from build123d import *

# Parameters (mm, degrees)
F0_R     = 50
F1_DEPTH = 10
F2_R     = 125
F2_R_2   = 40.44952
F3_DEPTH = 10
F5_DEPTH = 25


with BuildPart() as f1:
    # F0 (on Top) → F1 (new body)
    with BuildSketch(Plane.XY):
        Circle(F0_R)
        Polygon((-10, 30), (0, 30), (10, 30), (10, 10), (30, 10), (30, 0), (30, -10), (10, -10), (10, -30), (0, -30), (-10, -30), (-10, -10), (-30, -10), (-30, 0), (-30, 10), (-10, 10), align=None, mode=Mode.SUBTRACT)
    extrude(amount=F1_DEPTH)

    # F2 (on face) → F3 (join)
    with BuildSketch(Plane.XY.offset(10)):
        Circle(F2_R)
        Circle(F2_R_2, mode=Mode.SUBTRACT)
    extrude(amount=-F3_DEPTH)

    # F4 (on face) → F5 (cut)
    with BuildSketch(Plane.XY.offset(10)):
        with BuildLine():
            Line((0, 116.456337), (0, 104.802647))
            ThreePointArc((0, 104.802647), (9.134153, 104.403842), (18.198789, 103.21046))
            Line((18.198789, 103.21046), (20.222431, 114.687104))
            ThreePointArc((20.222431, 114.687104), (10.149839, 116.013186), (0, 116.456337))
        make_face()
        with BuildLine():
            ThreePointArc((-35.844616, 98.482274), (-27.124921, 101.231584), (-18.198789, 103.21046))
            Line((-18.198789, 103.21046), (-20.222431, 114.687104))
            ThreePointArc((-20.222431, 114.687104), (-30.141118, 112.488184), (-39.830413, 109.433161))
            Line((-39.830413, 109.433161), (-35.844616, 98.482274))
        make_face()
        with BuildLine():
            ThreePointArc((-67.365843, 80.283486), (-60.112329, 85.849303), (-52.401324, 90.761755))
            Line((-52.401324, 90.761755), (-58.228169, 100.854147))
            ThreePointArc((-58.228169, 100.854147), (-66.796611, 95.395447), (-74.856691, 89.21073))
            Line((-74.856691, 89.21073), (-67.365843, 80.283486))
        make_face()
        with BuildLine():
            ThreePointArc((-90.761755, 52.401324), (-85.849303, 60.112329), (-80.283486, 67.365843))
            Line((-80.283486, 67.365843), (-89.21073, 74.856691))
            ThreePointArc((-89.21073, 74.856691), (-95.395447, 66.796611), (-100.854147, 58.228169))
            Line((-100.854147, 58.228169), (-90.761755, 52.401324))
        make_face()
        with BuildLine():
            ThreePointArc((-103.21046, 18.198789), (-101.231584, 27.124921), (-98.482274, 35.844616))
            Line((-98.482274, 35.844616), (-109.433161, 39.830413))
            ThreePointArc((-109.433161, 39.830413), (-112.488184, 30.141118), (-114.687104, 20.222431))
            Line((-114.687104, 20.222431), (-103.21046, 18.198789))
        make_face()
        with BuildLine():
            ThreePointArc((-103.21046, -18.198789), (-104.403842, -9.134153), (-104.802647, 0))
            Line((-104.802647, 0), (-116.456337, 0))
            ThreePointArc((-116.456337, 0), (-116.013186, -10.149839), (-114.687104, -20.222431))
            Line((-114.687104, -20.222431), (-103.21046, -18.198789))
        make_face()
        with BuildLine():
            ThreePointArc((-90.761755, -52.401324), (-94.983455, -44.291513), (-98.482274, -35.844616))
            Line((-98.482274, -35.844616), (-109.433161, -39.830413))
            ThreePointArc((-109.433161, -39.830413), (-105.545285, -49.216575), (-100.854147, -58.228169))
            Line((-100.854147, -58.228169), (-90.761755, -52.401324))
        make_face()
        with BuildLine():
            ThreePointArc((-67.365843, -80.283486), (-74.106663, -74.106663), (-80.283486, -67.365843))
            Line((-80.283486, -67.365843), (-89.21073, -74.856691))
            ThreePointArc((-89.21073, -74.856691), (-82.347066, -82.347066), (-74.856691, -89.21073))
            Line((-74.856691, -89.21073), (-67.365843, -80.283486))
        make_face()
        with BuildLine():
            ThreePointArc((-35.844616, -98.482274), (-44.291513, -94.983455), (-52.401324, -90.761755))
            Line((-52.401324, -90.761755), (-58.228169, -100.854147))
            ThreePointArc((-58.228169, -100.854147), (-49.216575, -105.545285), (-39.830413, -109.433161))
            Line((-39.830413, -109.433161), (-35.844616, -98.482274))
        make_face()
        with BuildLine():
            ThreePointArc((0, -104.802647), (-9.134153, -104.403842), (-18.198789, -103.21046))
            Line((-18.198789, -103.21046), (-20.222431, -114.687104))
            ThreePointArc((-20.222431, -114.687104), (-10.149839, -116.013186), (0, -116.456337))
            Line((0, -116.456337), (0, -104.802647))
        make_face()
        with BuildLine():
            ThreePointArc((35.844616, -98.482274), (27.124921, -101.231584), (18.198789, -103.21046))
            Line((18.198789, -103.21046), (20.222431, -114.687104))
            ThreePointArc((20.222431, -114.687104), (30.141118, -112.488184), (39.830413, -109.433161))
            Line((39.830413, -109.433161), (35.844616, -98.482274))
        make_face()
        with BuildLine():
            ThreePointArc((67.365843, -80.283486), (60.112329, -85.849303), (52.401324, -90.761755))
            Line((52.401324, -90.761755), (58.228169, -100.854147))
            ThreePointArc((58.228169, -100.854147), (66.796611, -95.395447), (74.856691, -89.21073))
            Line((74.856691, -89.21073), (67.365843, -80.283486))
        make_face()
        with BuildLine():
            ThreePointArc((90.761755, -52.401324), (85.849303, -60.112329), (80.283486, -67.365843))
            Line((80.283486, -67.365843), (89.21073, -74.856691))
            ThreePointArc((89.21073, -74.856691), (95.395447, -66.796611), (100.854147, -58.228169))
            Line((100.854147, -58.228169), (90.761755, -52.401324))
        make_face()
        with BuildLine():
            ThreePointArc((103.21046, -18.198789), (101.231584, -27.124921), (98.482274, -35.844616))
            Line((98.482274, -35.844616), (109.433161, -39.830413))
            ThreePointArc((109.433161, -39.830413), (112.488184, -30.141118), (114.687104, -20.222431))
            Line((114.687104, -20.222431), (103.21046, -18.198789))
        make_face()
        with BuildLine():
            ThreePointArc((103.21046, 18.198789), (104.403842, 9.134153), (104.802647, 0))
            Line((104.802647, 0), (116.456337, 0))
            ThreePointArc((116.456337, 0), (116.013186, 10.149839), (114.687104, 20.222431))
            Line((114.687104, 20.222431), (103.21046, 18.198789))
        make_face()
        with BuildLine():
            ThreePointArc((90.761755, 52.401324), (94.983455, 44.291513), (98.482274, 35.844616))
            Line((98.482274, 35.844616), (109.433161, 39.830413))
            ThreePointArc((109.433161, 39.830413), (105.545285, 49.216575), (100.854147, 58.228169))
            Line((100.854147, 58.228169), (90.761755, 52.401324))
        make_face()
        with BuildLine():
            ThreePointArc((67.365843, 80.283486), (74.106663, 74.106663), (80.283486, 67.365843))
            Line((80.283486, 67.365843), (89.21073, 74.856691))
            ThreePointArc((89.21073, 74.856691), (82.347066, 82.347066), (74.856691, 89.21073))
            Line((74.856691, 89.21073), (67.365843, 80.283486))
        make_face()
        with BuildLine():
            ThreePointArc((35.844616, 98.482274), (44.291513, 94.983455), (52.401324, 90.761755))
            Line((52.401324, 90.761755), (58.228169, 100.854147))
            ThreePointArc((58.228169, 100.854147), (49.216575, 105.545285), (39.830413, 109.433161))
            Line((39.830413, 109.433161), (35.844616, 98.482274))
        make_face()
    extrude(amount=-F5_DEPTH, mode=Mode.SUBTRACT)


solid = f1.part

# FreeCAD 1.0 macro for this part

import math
import FreeCAD as App
import Part
import Sketcher

V = App.Vector
Q = App.Units.Quantity

doc = App.newDocument("Part")
body = doc.addObject("PartDesign::Body", "Body")

# Sketch on XY plane
sketch1 = body.newObject("Sketcher::SketchObject", "Sketch")
sketch1.AttachmentSupport = (doc.getObject("XY_Plane"), [""])
sketch1.MapMode = "FlatFace"
sketch1.addGeometry([
    Part.Circle(V(0, 0, 0), V(0, 0, 1), 50),  # 0
    Part.LineSegment(V(-10, 10, 0), V(-10, 30, 0)),  # 1
    Part.LineSegment(V(-10, 30, 0), V(10, 30, 0)),  # 2
    Part.LineSegment(V(10, 30, 0), V(10, 10, 0)),  # 3
    Part.LineSegment(V(10, 10, 0), V(30, 10, 0)),  # 4
    Part.LineSegment(V(30, 10, 0), V(30, -10, 0)),  # 5
    Part.LineSegment(V(30, -10, 0), V(10, -10, 0)),  # 6
    Part.LineSegment(V(10, -10, 0), V(10, -30, 0)),  # 7
    Part.LineSegment(V(10, -30, 0), V(-10, -30, 0)),  # 8
    Part.LineSegment(V(-10, -30, 0), V(-10, -10, 0)),  # 9
    Part.LineSegment(V(-10, -10, 0), V(-30, -10, 0)),  # 10
    Part.LineSegment(V(-30, -10, 0), V(-30, 10, 0)),  # 11
    Part.LineSegment(V(-30, 10, 0), V(-10, 10, 0)),  # 12
], False)
sketch1.addConstraint([
    Sketcher.Constraint("Coincident", 1, 2, 2, 1),
    Sketcher.Constraint("Coincident", 2, 2, 3, 1),
    Sketcher.Constraint("Coincident", 3, 2, 4, 1),
    Sketcher.Constraint("Coincident", 4, 2, 5, 1),
    Sketcher.Constraint("Coincident", 5, 2, 6, 1),
    Sketcher.Constraint("Coincident", 6, 2, 7, 1),
    Sketcher.Constraint("Coincident", 7, 2, 8, 1),
    Sketcher.Constraint("Coincident", 8, 2, 9, 1),
    Sketcher.Constraint("Coincident", 9, 2, 10, 1),
    Sketcher.Constraint("Coincident", 10, 2, 11, 1),
    Sketcher.Constraint("Coincident", 11, 2, 12, 1),
    Sketcher.Constraint("Coincident", 12, 2, 1, 1),
    Sketcher.Constraint("Vertical", 1),
    Sketcher.Constraint("Horizontal", 2),
    Sketcher.Constraint("Vertical", 3),
    Sketcher.Constraint("Horizontal", 4),
    Sketcher.Constraint("Vertical", 5),
    Sketcher.Constraint("Horizontal", 6),
    Sketcher.Constraint("Vertical", 7),
    Sketcher.Constraint("Horizontal", 8),
    Sketcher.Constraint("Vertical", 9),
    Sketcher.Constraint("Horizontal", 10),
    Sketcher.Constraint("Vertical", 11),
    Sketcher.Constraint("Horizontal", 12),
    Sketcher.Constraint("Coincident", 0, 3, -1, 1),
    Sketcher.Constraint("Symmetric", 1, 2, 7, 2, -1, 1),
    Sketcher.Constraint("Symmetric", 3, 2, 9, 2, -1, 1),
    Sketcher.Constraint("Symmetric", 5, 2, 11, 2, -1, 1),
    Sketcher.Constraint("Symmetric", 6, 2, 9, 2, -2),
    Sketcher.Constraint("Equal", 2, 4),
    Sketcher.Constraint("Equal", 12, 1),
    Sketcher.Constraint("Equal", 3, 5),
    Sketcher.Constraint("Diameter", 0, Q("100 mm")),
    Sketcher.Constraint("DistanceX", 2, 1, 2, 2, Q("20 mm")),
])
pad1 = body.newObject("PartDesign::Pad", "Pad")
pad1.Profile = sketch1
pad1.Length = 10

# Sketch on XY plane
sketch2 = body.newObject("Sketcher::SketchObject", "Sketch001")
sketch2.AttachmentSupport = (doc.getObject("XY_Plane"), [""])
sketch2.MapMode = "FlatFace"
sketch2.AttachmentOffset = App.Placement(V(0, 0, 10), App.Rotation())
sketch2.addGeometry([
    Part.Circle(V(0, 0, 0), V(0, 0, 1), 125),
    Part.Circle(V(0, 0, 0), V(0, 0, 1), 40),
], False)
sketch2.addConstraint([
    Sketcher.Constraint("Coincident", 0, 3, -1, 1),
    Sketcher.Constraint("Coincident", 1, 3, -1, 1),
    Sketcher.Constraint("Diameter", 0, Q("250 mm")),
    Sketcher.Constraint("Diameter", 1, Q("80.89904 mm")),
])
pad2 = body.newObject("PartDesign::Pad", "Pad001")
pad2.Profile = sketch2
pad2.Length = 10
pad2.Reversed = True

# Sketch on XY plane
sketch3 = body.newObject("Sketcher::SketchObject", "Sketch002")
sketch3.AttachmentSupport = (doc.getObject("XY_Plane"), [""])
sketch3.MapMode = "FlatFace"
sketch3.AttachmentOffset = App.Placement(V(0, 0, 10), App.Rotation())
sketch3.addGeometry([
    Part.LineSegment(V(0, 116.456337, 0), V(0, 104.802647, 0)),  # 0
    Part.ArcOfCircle(Part.Circle(V(0.000013, 0.000098, 0), V(0, 0, 1), 104.802549), math.radians(79.999997), math.radians(90.000007)),  # 1
    Part.LineSegment(V(18.198789, 103.21046, 0), V(20.222431, 114.687104, 0)),  # 2
    Part.ArcOfCircle(Part.Circle(V(0.00001, 0.000083, 0), V(0, 0, 1), 116.456254), math.radians(79.999998), math.radians(90.000005)),  # 3
    Part.ArcOfCircle(Part.Circle(V(-0.000014, 0.00007, 0), V(0, 0, 1), 104.802576), math.radians(99.999999), math.radians(110.000006)),  # 4
    Part.LineSegment(V(-18.198789, 103.21046, 0), V(-20.222431, 114.687104, 0)),  # 5
    Part.ArcOfCircle(Part.Circle(V(0, 0.000001, 0), V(0, 0, 1), 116.456336), math.radians(100), math.radians(110)),  # 6
    Part.LineSegment(V(-39.830413, 109.433161, 0), V(-35.844616, 98.482274, 0)),  # 7
    Part.ArcOfCircle(Part.Circle(V(0.000003, -0.000004, 0), V(0, 0, 1), 104.802653), math.radians(120), math.radians(130)),  # 8
    Part.LineSegment(V(-52.401324, 90.761755, 0), V(-58.228169, 100.854147, 0)),  # 9
    Part.ArcOfCircle(Part.Circle(V(0.000024, -0.00003, 0), V(0, 0, 1), 116.456376), math.radians(120.000003), math.radians(130)),  # 10
    Part.LineSegment(V(-74.856691, 89.21073, 0), V(-67.365843, 80.283486, 0)),  # 11
    Part.ArcOfCircle(Part.Circle(V(0.000004, -0.000003, 0), V(0, 0, 1), 104.802653), math.radians(140), math.radians(150)),  # 12
    Part.LineSegment(V(-80.283486, 67.365843, 0), V(-89.21073, 74.856691, 0)),  # 13
    Part.ArcOfCircle(Part.Circle(V(0.00003, -0.000024, 0), V(0, 0, 1), 116.456376), math.radians(140), math.radians(149.999997)),  # 14
    Part.LineSegment(V(-100.854147, 58.228169, 0), V(-90.761755, 52.401324, 0)),  # 15
    Part.ArcOfCircle(Part.Circle(V(-0.00007, 0.000014, 0), V(0, 0, 1), 104.802576), math.radians(159.999994), math.radians(170.000001)),  # 16
    Part.LineSegment(V(-98.482274, 35.844616, 0), V(-109.433161, 39.830413, 0)),  # 17
    Part.ArcOfCircle(Part.Circle(V(-0.000001, 0, 0), V(0, 0, 1), 116.456336), math.radians(160), math.radians(170)),  # 18
    Part.LineSegment(V(-114.687104, 20.222431, 0), V(-103.21046, 18.198789, 0)),  # 19
    Part.ArcOfCircle(Part.Circle(V(-0.000098, -0.000013, 0), V(0, 0, 1), 104.802549), math.radians(179.999993), math.radians(190.000003)),  # 20
    Part.LineSegment(V(-104.802647, 0, 0), V(-116.456337, 0, 0)),  # 21
    Part.ArcOfCircle(Part.Circle(V(-0.000083, -0.00001, 0), V(0, 0, 1), 116.456254), math.radians(179.999995), math.radians(190.000002)),  # 22
    Part.LineSegment(V(-114.687104, -20.222431, 0), V(-103.21046, -18.198789, 0)),  # 23
    Part.ArcOfCircle(Part.Circle(V(0.000013, 0.000002, 0), V(0, 0, 1), 104.80266), math.radians(-160.000002), math.radians(-150.000003)),  # 24
    Part.LineSegment(V(-98.482274, -35.844616, 0), V(-109.433161, -39.830413, 0)),  # 25
    Part.ArcOfCircle(Part.Circle(V(0.000143, 0.000064, 0), V(0, 0, 1), 116.456494), math.radians(-159.999995), math.radians(-150.000008)),  # 26
    Part.LineSegment(V(-100.854147, -58.228169, 0), V(-90.761755, -52.401324, 0)),  # 27
    Part.ArcOfCircle(Part.Circle(V(-0.000066, -0.000066, 0), V(0, 0, 1), 104.802554), math.radians(-140.000005), math.radians(-129.999995)),  # 28
    Part.LineSegment(V(-80.283486, -67.365843, 0), V(-89.21073, -74.856691, 0)),  # 29
    Part.ArcOfCircle(Part.Circle(V(-0.000018, -0.000018, 0), V(0, 0, 1), 116.456312), math.radians(-140.000001), math.radians(-129.999999)),  # 30
    Part.LineSegment(V(-74.856691, -89.21073, 0), V(-67.365843, -80.283486, 0)),  # 31
    Part.ArcOfCircle(Part.Circle(V(0.000002, 0.000013, 0), V(0, 0, 1), 104.80266), math.radians(-119.999997), math.radians(-109.999998)),  # 32
    Part.LineSegment(V(-52.401324, -90.761755, 0), V(-58.228169, -100.854147, 0)),  # 33
    Part.ArcOfCircle(Part.Circle(V(0.000064, 0.000143, 0), V(0, 0, 1), 116.456494), math.radians(-119.999992), math.radians(-110.000005)),  # 34
    Part.LineSegment(V(-39.830413, -109.433161, 0), V(-35.844616, -98.482274, 0)),  # 35
    Part.ArcOfCircle(Part.Circle(V(-0.000013, -0.000098, 0), V(0, 0, 1), 104.802549), math.radians(-100.000003), math.radians(-89.999993)),  # 36
    Part.LineSegment(V(-18.198789, -103.21046, 0), V(-20.222431, -114.687104, 0)),  # 37
    Part.ArcOfCircle(Part.Circle(V(-0.00001, -0.000083, 0), V(0, 0, 1), 116.456254), math.radians(-100.000002), math.radians(-89.999995)),  # 38
    Part.LineSegment(V(0, -116.456337, 0), V(0, -104.802647, 0)),  # 39
    Part.ArcOfCircle(Part.Circle(V(0.000014, -0.00007, 0), V(0, 0, 1), 104.802576), math.radians(-80.000001), math.radians(-69.999994)),  # 40
    Part.LineSegment(V(18.198789, -103.21046, 0), V(20.222431, -114.687104, 0)),  # 41
    Part.ArcOfCircle(Part.Circle(V(0, -0.000001, 0), V(0, 0, 1), 116.456336), math.radians(-80), math.radians(-70)),  # 42
    Part.LineSegment(V(39.830413, -109.433161, 0), V(35.844616, -98.482274, 0)),  # 43
    Part.ArcOfCircle(Part.Circle(V(-0.000003, 0.000004, 0), V(0, 0, 1), 104.802653), math.radians(-60), math.radians(-50)),  # 44
    Part.LineSegment(V(52.401324, -90.761755, 0), V(58.228169, -100.854147, 0)),  # 45
    Part.ArcOfCircle(Part.Circle(V(-0.000024, 0.00003, 0), V(0, 0, 1), 116.456376), math.radians(-59.999997), math.radians(-50)),  # 46
    Part.LineSegment(V(74.856691, -89.21073, 0), V(67.365843, -80.283486, 0)),  # 47
    Part.ArcOfCircle(Part.Circle(V(-0.000004, 0.000003, 0), V(0, 0, 1), 104.802653), math.radians(-40), math.radians(-30)),  # 48
    Part.LineSegment(V(80.283486, -67.365843, 0), V(89.21073, -74.856691, 0)),  # 49
    Part.ArcOfCircle(Part.Circle(V(-0.00003, 0.000024, 0), V(0, 0, 1), 116.456376), math.radians(-40), math.radians(-30.000003)),  # 50
    Part.LineSegment(V(100.854147, -58.228169, 0), V(90.761755, -52.401324, 0)),  # 51
    Part.ArcOfCircle(Part.Circle(V(0.00007, -0.000014, 0), V(0, 0, 1), 104.802576), math.radians(-20.000006), math.radians(-9.999999)),  # 52
    Part.LineSegment(V(98.482274, -35.844616, 0), V(109.433161, -39.830413, 0)),  # 53
    Part.ArcOfCircle(Part.Circle(V(0.000001, 0, 0), V(0, 0, 1), 116.456336), math.radians(-20), math.radians(-10)),  # 54
    Part.LineSegment(V(114.687104, -20.222431, 0), V(103.21046, -18.198789, 0)),  # 55
    Part.ArcOfCircle(Part.Circle(V(0.000098, 0.000013, 0), V(0, 0, 1), 104.802549), math.radians(-0.000007), math.radians(10.000003)),  # 56
    Part.LineSegment(V(104.802647, 0, 0), V(116.456337, 0, 0)),  # 57
    Part.ArcOfCircle(Part.Circle(V(0.000083, 0.00001, 0), V(0, 0, 1), 116.456254), math.radians(-0.000005), math.radians(10.000002)),  # 58
    Part.LineSegment(V(114.687104, 20.222431, 0), V(103.21046, 18.198789, 0)),  # 59
    Part.ArcOfCircle(Part.Circle(V(-0.000013, -0.000002, 0), V(0, 0, 1), 104.80266), math.radians(19.999998), math.radians(29.999997)),  # 60
    Part.LineSegment(V(98.482274, 35.844616, 0), V(109.433161, 39.830413, 0)),  # 61
    Part.ArcOfCircle(Part.Circle(V(-0.000143, -0.000064, 0), V(0, 0, 1), 116.456494), math.radians(20.000005), math.radians(29.999992)),  # 62
    Part.LineSegment(V(100.854147, 58.228169, 0), V(90.761755, 52.401324, 0)),  # 63
    Part.ArcOfCircle(Part.Circle(V(0.000066, 0.000066, 0), V(0, 0, 1), 104.802554), math.radians(39.999995), math.radians(50.000005)),  # 64
    Part.LineSegment(V(80.283486, 67.365843, 0), V(89.21073, 74.856691, 0)),  # 65
    Part.ArcOfCircle(Part.Circle(V(0.000018, 0.000018, 0), V(0, 0, 1), 116.456312), math.radians(39.999999), math.radians(50.000001)),  # 66
    Part.LineSegment(V(74.856691, 89.21073, 0), V(67.365843, 80.283486, 0)),  # 67
    Part.ArcOfCircle(Part.Circle(V(-0.000002, -0.000013, 0), V(0, 0, 1), 104.80266), math.radians(60.000003), math.radians(70.000002)),  # 68
    Part.LineSegment(V(52.401324, 90.761755, 0), V(58.228169, 100.854147, 0)),  # 69
    Part.ArcOfCircle(Part.Circle(V(-0.000064, -0.000143, 0), V(0, 0, 1), 116.456494), math.radians(60.000008), math.radians(69.999995)),  # 70
    Part.LineSegment(V(39.830413, 109.433161, 0), V(35.844616, 98.482274, 0)),  # 71
], False)
sketch3.addConstraint([
    Sketcher.Constraint("Coincident", 0, 2, 1, 2),
    Sketcher.Constraint("Coincident", 1, 1, 2, 1),
    Sketcher.Constraint("Coincident", 2, 2, 3, 1),
    Sketcher.Constraint("Coincident", 3, 2, 0, 1),
    Sketcher.Constraint("Coincident", 4, 1, 5, 1),
    Sketcher.Constraint("Coincident", 5, 2, 6, 1),
    Sketcher.Constraint("Coincident", 6, 2, 7, 1),
    Sketcher.Constraint("Coincident", 7, 2, 4, 2),
    Sketcher.Constraint("Coincident", 8, 1, 9, 1),
    Sketcher.Constraint("Coincident", 9, 2, 10, 1),
    Sketcher.Constraint("Coincident", 10, 2, 11, 1),
    Sketcher.Constraint("Coincident", 11, 2, 8, 2),
    Sketcher.Constraint("Coincident", 12, 1, 13, 1),
    Sketcher.Constraint("Coincident", 13, 2, 14, 1),
    Sketcher.Constraint("Coincident", 14, 2, 15, 1),
    Sketcher.Constraint("Coincident", 15, 2, 12, 2),
    Sketcher.Constraint("Coincident", 16, 1, 17, 1),
    Sketcher.Constraint("Coincident", 17, 2, 18, 1),
    Sketcher.Constraint("Coincident", 18, 2, 19, 1),
    Sketcher.Constraint("Coincident", 19, 2, 16, 2),
    Sketcher.Constraint("Coincident", 20, 1, 21, 1),
    Sketcher.Constraint("Coincident", 21, 2, 22, 1),
    Sketcher.Constraint("Coincident", 22, 2, 23, 1),
    Sketcher.Constraint("Coincident", 23, 2, 20, 2),
    Sketcher.Constraint("Coincident", 24, 1, 25, 1),
    Sketcher.Constraint("Coincident", 25, 2, 26, 1),
    Sketcher.Constraint("Coincident", 26, 2, 27, 1),
    Sketcher.Constraint("Coincident", 27, 2, 24, 2),
    Sketcher.Constraint("Coincident", 28, 1, 29, 1),
    Sketcher.Constraint("Coincident", 29, 2, 30, 1),
    Sketcher.Constraint("Coincident", 30, 2, 31, 1),
    Sketcher.Constraint("Coincident", 31, 2, 28, 2),
    Sketcher.Constraint("Coincident", 32, 1, 33, 1),
    Sketcher.Constraint("Coincident", 33, 2, 34, 1),
    Sketcher.Constraint("Coincident", 34, 2, 35, 1),
    Sketcher.Constraint("Coincident", 35, 2, 32, 2),
    Sketcher.Constraint("Coincident", 36, 1, 37, 1),
    Sketcher.Constraint("Coincident", 37, 2, 38, 1),
    Sketcher.Constraint("Coincident", 38, 2, 39, 1),
    Sketcher.Constraint("Coincident", 39, 2, 36, 2),
    Sketcher.Constraint("Coincident", 40, 1, 41, 1),
    Sketcher.Constraint("Coincident", 41, 2, 42, 1),
    Sketcher.Constraint("Coincident", 42, 2, 43, 1),
    Sketcher.Constraint("Coincident", 43, 2, 40, 2),
    Sketcher.Constraint("Coincident", 44, 1, 45, 1),
    Sketcher.Constraint("Coincident", 45, 2, 46, 1),
    Sketcher.Constraint("Coincident", 46, 2, 47, 1),
    Sketcher.Constraint("Coincident", 47, 2, 44, 2),
    Sketcher.Constraint("Coincident", 48, 1, 49, 1),
    Sketcher.Constraint("Coincident", 49, 2, 50, 1),
    Sketcher.Constraint("Coincident", 50, 2, 51, 1),
    Sketcher.Constraint("Coincident", 51, 2, 48, 2),
    Sketcher.Constraint("Coincident", 52, 1, 53, 1),
    Sketcher.Constraint("Coincident", 53, 2, 54, 1),
    Sketcher.Constraint("Coincident", 54, 2, 55, 1),
    Sketcher.Constraint("Coincident", 55, 2, 52, 2),
    Sketcher.Constraint("Coincident", 56, 1, 57, 1),
    Sketcher.Constraint("Coincident", 57, 2, 58, 1),
    Sketcher.Constraint("Coincident", 58, 2, 59, 1),
    Sketcher.Constraint("Coincident", 59, 2, 56, 2),
    Sketcher.Constraint("Coincident", 60, 1, 61, 1),
    Sketcher.Constraint("Coincident", 61, 2, 62, 1),
    Sketcher.Constraint("Coincident", 62, 2, 63, 1),
    Sketcher.Constraint("Coincident", 63, 2, 60, 2),
    Sketcher.Constraint("Coincident", 64, 1, 65, 1),
    Sketcher.Constraint("Coincident", 65, 2, 66, 1),
    Sketcher.Constraint("Coincident", 66, 2, 67, 1),
    Sketcher.Constraint("Coincident", 67, 2, 64, 2),
    Sketcher.Constraint("Coincident", 68, 1, 69, 1),
    Sketcher.Constraint("Coincident", 69, 2, 70, 1),
    Sketcher.Constraint("Coincident", 70, 2, 71, 1),
    Sketcher.Constraint("Coincident", 71, 2, 68, 2),
    Sketcher.Constraint("Vertical", 0),
    Sketcher.Constraint("Horizontal", 21),
    Sketcher.Constraint("Vertical", 39),
    Sketcher.Constraint("Horizontal", 57),
    Sketcher.Constraint("Coincident", 6, 3, -1, 1),
    Sketcher.Constraint("Coincident", 8, 3, -1, 1),
    Sketcher.Constraint("Coincident", 12, 3, -1, 1),
    Sketcher.Constraint("Coincident", 18, 3, -1, 1),
    Sketcher.Constraint("Coincident", 42, 3, -1, 1),
    Sketcher.Constraint("Coincident", 44, 3, -1, 1),
    Sketcher.Constraint("Coincident", 48, 3, -1, 1),
    Sketcher.Constraint("Coincident", 54, 3, -1, 1),
    Sketcher.Constraint("Coincident", 14, 3, 10, 3),
    Sketcher.Constraint("Coincident", 50, 3, 46, 3),
    Sketcher.Constraint("PointOnObject", 0, 2, -2),
    Sketcher.Constraint("PointOnObject", 20, 1, -1),
    Sketcher.Constraint("PointOnObject", 38, 2, -2),
    Sketcher.Constraint("PointOnObject", 56, 1, -1),
    Sketcher.Constraint("Radius", 1, Q("104.802549 mm")),
    Sketcher.Constraint("Radius", 20, Q("104.802549 mm")),
    Sketcher.Constraint("Radius", 24, Q("104.80266 mm")),
    Sketcher.Constraint("Radius", 30, Q("116.456312 mm")),
    Sketcher.Constraint("Radius", 32, Q("104.80266 mm")),
    Sketcher.Constraint("Radius", 36, Q("104.802549 mm")),
    Sketcher.Constraint("Radius", 56, Q("104.802549 mm")),
    Sketcher.Constraint("Radius", 60, Q("104.80266 mm")),
    Sketcher.Constraint("Radius", 66, Q("116.456312 mm")),
    Sketcher.Constraint("Radius", 68, Q("104.80266 mm")),
    Sketcher.Constraint("Radius", 3, Q("116.456254 mm")),
    Sketcher.Constraint("Radius", 4, Q("104.802576 mm")),
    Sketcher.Constraint("Radius", 6, Q("116.456336 mm")),
    Sketcher.Constraint("Radius", 8, Q("104.802653 mm")),
    Sketcher.Constraint("Radius", 10, Q("116.456376 mm")),
    Sketcher.Constraint("Radius", 12, Q("104.802653 mm")),
    Sketcher.Constraint("Radius", 14, Q("116.456376 mm")),
    Sketcher.Constraint("Radius", 16, Q("104.802576 mm")),
    Sketcher.Constraint("Radius", 18, Q("116.456336 mm")),
    Sketcher.Constraint("Radius", 22, Q("116.456254 mm")),
    Sketcher.Constraint("Radius", 26, Q("116.456494 mm")),
    Sketcher.Constraint("Radius", 28, Q("104.802554 mm")),
    Sketcher.Constraint("Radius", 34, Q("116.456494 mm")),
    Sketcher.Constraint("Radius", 38, Q("116.456254 mm")),
    Sketcher.Constraint("Radius", 40, Q("104.802576 mm")),
    Sketcher.Constraint("Radius", 42, Q("116.456336 mm")),
    Sketcher.Constraint("Radius", 44, Q("104.802653 mm")),
    Sketcher.Constraint("Radius", 46, Q("116.456376 mm")),
    Sketcher.Constraint("Radius", 48, Q("104.802653 mm")),
    Sketcher.Constraint("Radius", 50, Q("116.456376 mm")),
    Sketcher.Constraint("Radius", 52, Q("104.802576 mm")),
    Sketcher.Constraint("Radius", 54, Q("116.456336 mm")),
    Sketcher.Constraint("Radius", 58, Q("116.456254 mm")),
    Sketcher.Constraint("Radius", 62, Q("116.456494 mm")),
    Sketcher.Constraint("Radius", 64, Q("104.802554 mm")),
    Sketcher.Constraint("Radius", 70, Q("116.456494 mm")),
    Sketcher.Constraint("DistanceX", 21, 2, 21, 1, Q("11.65369 mm")),
    Sketcher.Constraint("DistanceX", 57, 1, 57, 2, Q("11.65369 mm")),
    Sketcher.Constraint("DistanceY", 0, 2, 0, 1, Q("11.65369 mm")),
    Sketcher.Constraint("DistanceY", 39, 1, 39, 2, Q("11.65369 mm")),
    Sketcher.Constraint("Distance", 2, Q("11.65369 mm")),
    Sketcher.Constraint("Distance", 5, Q("11.65369 mm")),
    Sketcher.Constraint("Distance", 7, Q("11.653691 mm")),
    Sketcher.Constraint("Distance", 9, Q("11.65369 mm")),
    Sketcher.Constraint("Distance", 11, Q("11.65369 mm")),
    Sketcher.Constraint("Distance", 17, Q("11.653691 mm")),
    Sketcher.Constraint("Distance", 19, Q("11.65369 mm")),
    Sketcher.Constraint("Distance", 23, Q("11.65369 mm")),
    Sketcher.Constraint("Distance", 25, Q("11.653691 mm")),
    Sketcher.Constraint("Distance", 27, Q("11.65369 mm")),
    Sketcher.Constraint("Distance", 29, Q("11.65369 mm")),
    Sketcher.Constraint("Distance", 31, Q("11.65369 mm")),
    Sketcher.Constraint("Distance", 33, Q("11.65369 mm")),
    Sketcher.Constraint("Distance", 35, Q("11.653691 mm")),
    Sketcher.Constraint("Distance", 37, Q("11.65369 mm")),
    Sketcher.Constraint("Distance", 41, Q("11.65369 mm")),
    Sketcher.Constraint("Distance", 43, Q("11.653691 mm")),
    Sketcher.Constraint("Distance", 45, Q("11.65369 mm")),
    Sketcher.Constraint("Distance", 47, Q("11.65369 mm")),
    Sketcher.Constraint("Distance", 53, Q("11.653691 mm")),
    Sketcher.Constraint("Distance", 55, Q("11.65369 mm")),
    Sketcher.Constraint("Distance", 59, Q("11.65369 mm")),
    Sketcher.Constraint("Distance", 61, Q("11.653691 mm")),
    Sketcher.Constraint("Distance", 63, Q("11.65369 mm")),
    Sketcher.Constraint("Distance", 65, Q("11.65369 mm")),
    Sketcher.Constraint("Distance", 67, Q("11.65369 mm")),
    Sketcher.Constraint("Distance", 69, Q("11.65369 mm")),
    Sketcher.Constraint("Distance", 71, Q("11.653691 mm")),
    Sketcher.Constraint("DistanceX", -1, 1, 1, 1, Q("18.198789 mm")),
    Sketcher.Constraint("DistanceY", -1, 1, 1, 1, Q("103.21046 mm")),
    Sketcher.Constraint("DistanceX", -1, 1, 2, 2, Q("20.222431 mm")),
    Sketcher.Constraint("DistanceX", 4, 1, -1, 1, Q("18.198789 mm")),
    Sketcher.Constraint("DistanceX", 5, 2, -1, 1, Q("20.222431 mm")),
    Sketcher.Constraint("DistanceY", -1, 1, 6, 2, Q("109.433161 mm")),
    Sketcher.Constraint("DistanceX", 9, 2, -1, 1, Q("58.228169 mm")),
    Sketcher.Constraint("DistanceX", 10, 2, -1, 1, Q("74.856691 mm")),
    Sketcher.Constraint("DistanceX", 13, 2, -1, 1, Q("89.21073 mm")),
    Sketcher.Constraint("DistanceY", -1, 1, 14, 2, Q("58.228169 mm")),
    Sketcher.Constraint("DistanceX", 17, 2, -1, 1, Q("109.433161 mm")),
    Sketcher.Constraint("DistanceY", -1, 1, 18, 2, Q("20.222431 mm")),
    Sketcher.Constraint("DistanceX", 19, 2, -1, 1, Q("103.21046 mm")),
    Sketcher.Constraint("DistanceY", 22, 2, -1, 1, Q("20.222431 mm")),
    Sketcher.Constraint("DistanceX", 23, 2, -1, 1, Q("103.21046 mm")),
    Sketcher.Constraint("DistanceY", 23, 2, -1, 1, Q("18.198789 mm")),
    Sketcher.Constraint("DistanceX", 25, 2, -1, 1, Q("109.433161 mm")),
    Sketcher.Constraint("DistanceY", 26, 2, -1, 1, Q("58.228169 mm")),
    Sketcher.Constraint("DistanceX", 29, 2, -1, 1, Q("89.21073 mm")),
    Sketcher.Constraint("DistanceY", 29, 2, -1, 1, Q("74.856691 mm")),
    Sketcher.Constraint("DistanceX", 30, 2, -1, 1, Q("74.856691 mm")),
    Sketcher.Constraint("DistanceY", 30, 2, -1, 1, Q("89.21073 mm")),
    Sketcher.Constraint("DistanceX", 33, 2, -1, 1, Q("58.228169 mm")),
    Sketcher.Constraint("DistanceY", 34, 2, -1, 1, Q("109.433161 mm")),
    Sketcher.Constraint("DistanceX", 36, 1, -1, 1, Q("18.198789 mm")),
    Sketcher.Constraint("DistanceY", 36, 1, -1, 1, Q("103.21046 mm")),
    Sketcher.Constraint("DistanceX", 37, 2, -1, 1, Q("20.222431 mm")),
    Sketcher.Constraint("DistanceX", -1, 1, 40, 1, Q("18.198789 mm")),
    Sketcher.Constraint("DistanceX", -1, 1, 41, 2, Q("20.222431 mm")),
    Sketcher.Constraint("DistanceY", 42, 2, -1, 1, Q("109.433161 mm")),
    Sketcher.Constraint("DistanceX", -1, 1, 45, 2, Q("58.228169 mm")),
    Sketcher.Constraint("DistanceX", -1, 1, 46, 2, Q("74.856691 mm")),
    Sketcher.Constraint("DistanceX", -1, 1, 49, 2, Q("89.21073 mm")),
    Sketcher.Constraint("DistanceY", 50, 2, -1, 1, Q("58.228169 mm")),
    Sketcher.Constraint("DistanceX", -1, 1, 53, 2, Q("109.433161 mm")),
    Sketcher.Constraint("DistanceY", 54, 2, -1, 1, Q("20.222431 mm")),
    Sketcher.Constraint("DistanceX", -1, 1, 55, 2, Q("103.21046 mm")),
    Sketcher.Constraint("DistanceY", -1, 1, 58, 2, Q("20.222431 mm")),
    Sketcher.Constraint("DistanceX", -1, 1, 59, 2, Q("103.21046 mm")),
    Sketcher.Constraint("DistanceY", -1, 1, 59, 2, Q("18.198789 mm")),
    Sketcher.Constraint("DistanceX", -1, 1, 61, 2, Q("109.433161 mm")),
    Sketcher.Constraint("DistanceY", -1, 1, 62, 2, Q("58.228169 mm")),
    Sketcher.Constraint("DistanceX", -1, 1, 65, 2, Q("89.21073 mm")),
    Sketcher.Constraint("DistanceY", -1, 1, 65, 2, Q("74.856691 mm")),
    Sketcher.Constraint("DistanceX", -1, 1, 66, 2, Q("74.856691 mm")),
    Sketcher.Constraint("DistanceY", -1, 1, 66, 2, Q("89.21073 mm")),
    Sketcher.Constraint("DistanceX", -1, 1, 69, 2, Q("58.228169 mm")),
    Sketcher.Constraint("DistanceY", -1, 1, 70, 2, Q("109.433161 mm")),
    Sketcher.Constraint("DistanceX", -1, 1, 26, 3, Q("0.000143 mm")),
    Sketcher.Constraint("DistanceY", -1, 1, 34, 3, Q("0.000143 mm")),
    Sketcher.Constraint("DistanceX", 62, 3, -1, 1, Q("0.000143 mm")),
    Sketcher.Constraint("DistanceY", 70, 3, -1, 1, Q("0.000143 mm")),
    Sketcher.Constraint("DistanceY", -1, 1, 0, 2, Q("104.802647 mm")),
    Sketcher.Constraint("DistanceX", 7, 2, -1, 1, Q("35.844616 mm")),
    Sketcher.Constraint("DistanceX", 8, 1, -1, 1, Q("52.401324 mm")),
    Sketcher.Constraint("DistanceX", 11, 2, -1, 1, Q("67.365843 mm")),
    Sketcher.Constraint("DistanceX", 12, 1, -1, 1, Q("80.283486 mm")),
    Sketcher.Constraint("DistanceX", 15, 2, -1, 1, Q("90.761755 mm")),
    Sketcher.Constraint("DistanceX", 16, 1, -1, 1, Q("98.482274 mm")),
    Sketcher.Constraint("DistanceX", 20, 1, -1, 1, Q("104.802647 mm")),
    Sketcher.Constraint("DistanceX", 24, 1, -1, 1, Q("98.482274 mm")),
    Sketcher.Constraint("DistanceY", 24, 1, -1, 1, Q("35.844616 mm")),
    Sketcher.Constraint("DistanceX", 27, 2, -1, 1, Q("90.761755 mm")),
    Sketcher.Constraint("DistanceX", 28, 1, -1, 1, Q("80.283486 mm")),
    Sketcher.Constraint("DistanceX", 31, 2, -1, 1, Q("67.365843 mm")),
    Sketcher.Constraint("DistanceX", 32, 1, -1, 1, Q("52.401324 mm")),
    Sketcher.Constraint("DistanceY", 32, 1, -1, 1, Q("90.761755 mm")),
    Sketcher.Constraint("DistanceX", 35, 2, -1, 1, Q("35.844616 mm")),
    Sketcher.Constraint("DistanceY", 38, 2, -1, 1, Q("116.456337 mm")),
    Sketcher.Constraint("DistanceX", -1, 1, 43, 2, Q("35.844616 mm")),
    Sketcher.Constraint("DistanceX", -1, 1, 44, 1, Q("52.401324 mm")),
    Sketcher.Constraint("DistanceX", -1, 1, 47, 2, Q("67.365843 mm")),
    Sketcher.Constraint("DistanceX", -1, 1, 48, 1, Q("80.283486 mm")),
    Sketcher.Constraint("DistanceX", -1, 1, 51, 2, Q("90.761755 mm")),
    Sketcher.Constraint("DistanceX", -1, 1, 52, 1, Q("98.482274 mm")),
    Sketcher.Constraint("DistanceX", -1, 1, 56, 1, Q("104.802647 mm")),
    Sketcher.Constraint("DistanceX", -1, 1, 60, 1, Q("98.482274 mm")),
    Sketcher.Constraint("DistanceY", -1, 1, 60, 1, Q("35.844616 mm")),
    Sketcher.Constraint("DistanceX", -1, 1, 63, 2, Q("90.761755 mm")),
    Sketcher.Constraint("DistanceX", -1, 1, 64, 1, Q("80.283486 mm")),
    Sketcher.Constraint("DistanceX", -1, 1, 67, 2, Q("67.365843 mm")),
    Sketcher.Constraint("DistanceX", -1, 1, 68, 1, Q("52.401324 mm")),
    Sketcher.Constraint("DistanceY", -1, 1, 68, 1, Q("90.761755 mm")),
    Sketcher.Constraint("DistanceX", -1, 1, 71, 2, Q("35.844616 mm")),
])
pocket1 = body.newObject("PartDesign::Pocket", "Pocket")
pocket1.Profile = sketch3
pocket1.Length = 25

doc.recompute()
